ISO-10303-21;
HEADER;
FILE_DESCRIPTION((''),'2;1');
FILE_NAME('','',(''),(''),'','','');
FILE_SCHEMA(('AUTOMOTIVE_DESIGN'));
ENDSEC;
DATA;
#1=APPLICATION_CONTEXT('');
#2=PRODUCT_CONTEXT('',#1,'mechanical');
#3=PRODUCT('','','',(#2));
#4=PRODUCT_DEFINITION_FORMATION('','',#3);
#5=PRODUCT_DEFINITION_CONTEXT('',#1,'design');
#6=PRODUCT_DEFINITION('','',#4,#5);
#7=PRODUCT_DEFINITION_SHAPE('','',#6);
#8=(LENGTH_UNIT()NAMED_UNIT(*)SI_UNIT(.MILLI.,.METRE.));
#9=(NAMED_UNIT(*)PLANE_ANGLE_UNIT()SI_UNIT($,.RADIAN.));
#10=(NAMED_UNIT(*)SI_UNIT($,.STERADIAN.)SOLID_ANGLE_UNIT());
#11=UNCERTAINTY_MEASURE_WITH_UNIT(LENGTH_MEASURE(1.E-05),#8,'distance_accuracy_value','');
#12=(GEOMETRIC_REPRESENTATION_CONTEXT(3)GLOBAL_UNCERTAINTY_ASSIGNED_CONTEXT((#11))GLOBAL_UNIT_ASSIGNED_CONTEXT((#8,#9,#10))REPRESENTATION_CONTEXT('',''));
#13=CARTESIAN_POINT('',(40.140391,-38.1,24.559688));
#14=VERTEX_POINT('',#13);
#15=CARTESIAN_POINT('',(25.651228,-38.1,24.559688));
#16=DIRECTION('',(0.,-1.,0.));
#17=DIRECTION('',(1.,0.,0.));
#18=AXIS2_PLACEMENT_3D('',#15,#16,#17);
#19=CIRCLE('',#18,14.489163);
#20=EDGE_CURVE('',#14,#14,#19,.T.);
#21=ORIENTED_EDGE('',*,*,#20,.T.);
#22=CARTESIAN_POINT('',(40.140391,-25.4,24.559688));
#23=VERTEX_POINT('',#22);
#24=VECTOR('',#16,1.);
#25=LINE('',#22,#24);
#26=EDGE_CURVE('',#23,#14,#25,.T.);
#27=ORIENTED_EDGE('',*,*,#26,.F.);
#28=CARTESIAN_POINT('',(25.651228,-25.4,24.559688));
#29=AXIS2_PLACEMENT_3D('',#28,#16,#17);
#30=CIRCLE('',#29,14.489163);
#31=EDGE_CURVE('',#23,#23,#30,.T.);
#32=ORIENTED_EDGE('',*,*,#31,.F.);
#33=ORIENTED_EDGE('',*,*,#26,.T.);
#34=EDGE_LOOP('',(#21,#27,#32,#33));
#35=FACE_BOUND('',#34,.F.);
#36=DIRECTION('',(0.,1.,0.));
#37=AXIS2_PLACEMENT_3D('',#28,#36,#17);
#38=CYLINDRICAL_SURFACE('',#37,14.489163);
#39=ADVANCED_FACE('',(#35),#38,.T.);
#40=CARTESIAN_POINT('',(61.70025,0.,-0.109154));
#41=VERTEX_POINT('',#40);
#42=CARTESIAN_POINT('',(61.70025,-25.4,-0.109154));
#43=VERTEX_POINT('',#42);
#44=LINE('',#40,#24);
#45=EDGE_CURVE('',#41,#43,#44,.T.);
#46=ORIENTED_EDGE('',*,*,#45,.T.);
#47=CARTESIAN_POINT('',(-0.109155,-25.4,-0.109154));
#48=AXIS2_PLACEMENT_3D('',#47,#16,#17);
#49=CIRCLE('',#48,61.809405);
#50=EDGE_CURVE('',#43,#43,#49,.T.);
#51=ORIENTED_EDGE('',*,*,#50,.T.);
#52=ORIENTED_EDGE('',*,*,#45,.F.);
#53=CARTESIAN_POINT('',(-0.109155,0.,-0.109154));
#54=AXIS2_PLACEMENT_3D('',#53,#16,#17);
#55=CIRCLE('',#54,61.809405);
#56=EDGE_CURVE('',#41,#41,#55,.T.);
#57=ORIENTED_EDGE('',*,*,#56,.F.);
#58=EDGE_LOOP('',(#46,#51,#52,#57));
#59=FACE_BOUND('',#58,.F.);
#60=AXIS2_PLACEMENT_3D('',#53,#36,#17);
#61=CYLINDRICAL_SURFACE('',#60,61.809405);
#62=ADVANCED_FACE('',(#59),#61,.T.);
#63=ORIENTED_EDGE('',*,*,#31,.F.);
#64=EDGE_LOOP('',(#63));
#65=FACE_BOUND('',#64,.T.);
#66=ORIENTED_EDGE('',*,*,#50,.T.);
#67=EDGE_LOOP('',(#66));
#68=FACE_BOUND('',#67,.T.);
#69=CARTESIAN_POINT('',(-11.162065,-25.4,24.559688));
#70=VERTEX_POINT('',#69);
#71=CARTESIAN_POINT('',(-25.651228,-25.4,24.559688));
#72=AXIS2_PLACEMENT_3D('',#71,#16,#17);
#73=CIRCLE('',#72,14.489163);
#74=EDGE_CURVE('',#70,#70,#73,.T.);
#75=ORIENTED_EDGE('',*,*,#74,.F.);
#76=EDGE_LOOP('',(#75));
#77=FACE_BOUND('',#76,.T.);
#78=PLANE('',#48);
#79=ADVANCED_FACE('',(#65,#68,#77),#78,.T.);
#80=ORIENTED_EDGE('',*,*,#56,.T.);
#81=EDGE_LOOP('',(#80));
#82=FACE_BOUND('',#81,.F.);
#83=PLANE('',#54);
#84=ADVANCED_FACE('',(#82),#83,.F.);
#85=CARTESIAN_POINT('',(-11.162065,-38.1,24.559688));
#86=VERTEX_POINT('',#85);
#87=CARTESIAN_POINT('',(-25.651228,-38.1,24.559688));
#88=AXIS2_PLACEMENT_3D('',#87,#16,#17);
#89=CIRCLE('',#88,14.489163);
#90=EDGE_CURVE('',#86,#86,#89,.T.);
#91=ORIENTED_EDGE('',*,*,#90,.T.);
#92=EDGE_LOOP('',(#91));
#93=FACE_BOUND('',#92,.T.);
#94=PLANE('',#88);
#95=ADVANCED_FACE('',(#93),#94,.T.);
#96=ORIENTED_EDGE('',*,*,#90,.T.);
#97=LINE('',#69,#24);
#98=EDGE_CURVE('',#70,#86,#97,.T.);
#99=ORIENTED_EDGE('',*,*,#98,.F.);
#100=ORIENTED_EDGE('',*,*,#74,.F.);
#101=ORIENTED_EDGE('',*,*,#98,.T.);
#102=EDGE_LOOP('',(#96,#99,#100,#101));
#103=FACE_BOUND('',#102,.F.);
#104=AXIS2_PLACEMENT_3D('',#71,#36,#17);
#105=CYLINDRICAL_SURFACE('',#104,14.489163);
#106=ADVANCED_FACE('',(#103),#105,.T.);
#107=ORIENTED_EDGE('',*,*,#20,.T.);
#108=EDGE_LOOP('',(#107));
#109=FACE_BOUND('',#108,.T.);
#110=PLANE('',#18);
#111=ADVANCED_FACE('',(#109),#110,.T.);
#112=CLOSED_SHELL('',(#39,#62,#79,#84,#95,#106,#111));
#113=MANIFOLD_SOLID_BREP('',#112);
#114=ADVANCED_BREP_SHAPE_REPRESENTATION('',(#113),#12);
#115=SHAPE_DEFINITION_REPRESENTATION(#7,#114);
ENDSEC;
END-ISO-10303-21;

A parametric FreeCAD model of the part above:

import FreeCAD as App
import Part
import Sketcher

V = App.Vector
Q = App.Units.Quantity

doc = App.newDocument("Part")
params = doc.addObject("Spreadsheet::Sheet", "Params")
for row, (alias, value) in enumerate([
    ("pad1_length", "1 in"),
    ("pad2_length", "0.5 in"),
], start=1):
    params.set(f"A{row}", alias)
    params.set(f"B{row}", "=" + value)
    params.setAlias(f"B{row}", alias)

body = doc.addObject("PartDesign::Body", "Body")

sketch1 = body.newObject("Sketcher::SketchObject", "Sketch")
sketch1.AttachmentSupport = (doc.getObject("XZ_Plane"), [""])
sketch1.MapMode = "FlatFace"
sketch1.addGeometry(Part.Circle(V(0, 0, 0), V(0, 0, 1), 62), False)
sketch1.addConstraint(Sketcher.Constraint("Diameter", 0, Q("123.61881 mm")))
sketch1.addConstraint(Sketcher.Constraint("DistanceX", 0, 3, -1, 1, Q("0.109155 mm")))
sketch1.addConstraint(Sketcher.Constraint("DistanceY", 0, 3, -1, 1, Q("0.109154 mm")))
pad1 = body.newObject("PartDesign::Pad", "Pad")
pad1.Profile = sketch1
pad1.setExpression("Length", "Params.pad1_length")

sketch2 = body.newObject("Sketcher::SketchObject", "Sketch001")
sketch2.AttachmentSupport = (doc.getObject("XZ_Plane"), [""])
sketch2.MapMode = "FlatFace"
sketch2.AttachmentOffset = App.Placement(V(0, 0, 1 * 25.4), App.Rotation())
sketch2.addGeometry(Part.Circle(V(-26, 25, 0), V(0, 0, 1), 14), False)
sketch2.addGeometry(Part.Circle(V(26, 25, 0), V(0, 0, 1), 14), False)
sketch2.addConstraint(Sketcher.Constraint("Equal", 0, 1))
sketch2.addConstraint(Sketcher.Constraint("Symmetric", 0, 3, 1, 3, -2))
sketch2.addConstraint(Sketcher.Constraint("Diameter", 0, Q("28.978326 mm")))
sketch2.addConstraint(Sketcher.Constraint("DistanceY", -1, 1, 0, 3, Q("24.559688 mm")))
sketch2.addConstraint(Sketcher.Constraint("DistanceX", 0, 3, -1, 1, Q("25.651228 mm")))
pad2 = body.newObject("PartDesign::Pad", "Pad001")
pad2.Profile = sketch2
pad2.setExpression("Length", "Params.pad2_length")

doc.recompute()
